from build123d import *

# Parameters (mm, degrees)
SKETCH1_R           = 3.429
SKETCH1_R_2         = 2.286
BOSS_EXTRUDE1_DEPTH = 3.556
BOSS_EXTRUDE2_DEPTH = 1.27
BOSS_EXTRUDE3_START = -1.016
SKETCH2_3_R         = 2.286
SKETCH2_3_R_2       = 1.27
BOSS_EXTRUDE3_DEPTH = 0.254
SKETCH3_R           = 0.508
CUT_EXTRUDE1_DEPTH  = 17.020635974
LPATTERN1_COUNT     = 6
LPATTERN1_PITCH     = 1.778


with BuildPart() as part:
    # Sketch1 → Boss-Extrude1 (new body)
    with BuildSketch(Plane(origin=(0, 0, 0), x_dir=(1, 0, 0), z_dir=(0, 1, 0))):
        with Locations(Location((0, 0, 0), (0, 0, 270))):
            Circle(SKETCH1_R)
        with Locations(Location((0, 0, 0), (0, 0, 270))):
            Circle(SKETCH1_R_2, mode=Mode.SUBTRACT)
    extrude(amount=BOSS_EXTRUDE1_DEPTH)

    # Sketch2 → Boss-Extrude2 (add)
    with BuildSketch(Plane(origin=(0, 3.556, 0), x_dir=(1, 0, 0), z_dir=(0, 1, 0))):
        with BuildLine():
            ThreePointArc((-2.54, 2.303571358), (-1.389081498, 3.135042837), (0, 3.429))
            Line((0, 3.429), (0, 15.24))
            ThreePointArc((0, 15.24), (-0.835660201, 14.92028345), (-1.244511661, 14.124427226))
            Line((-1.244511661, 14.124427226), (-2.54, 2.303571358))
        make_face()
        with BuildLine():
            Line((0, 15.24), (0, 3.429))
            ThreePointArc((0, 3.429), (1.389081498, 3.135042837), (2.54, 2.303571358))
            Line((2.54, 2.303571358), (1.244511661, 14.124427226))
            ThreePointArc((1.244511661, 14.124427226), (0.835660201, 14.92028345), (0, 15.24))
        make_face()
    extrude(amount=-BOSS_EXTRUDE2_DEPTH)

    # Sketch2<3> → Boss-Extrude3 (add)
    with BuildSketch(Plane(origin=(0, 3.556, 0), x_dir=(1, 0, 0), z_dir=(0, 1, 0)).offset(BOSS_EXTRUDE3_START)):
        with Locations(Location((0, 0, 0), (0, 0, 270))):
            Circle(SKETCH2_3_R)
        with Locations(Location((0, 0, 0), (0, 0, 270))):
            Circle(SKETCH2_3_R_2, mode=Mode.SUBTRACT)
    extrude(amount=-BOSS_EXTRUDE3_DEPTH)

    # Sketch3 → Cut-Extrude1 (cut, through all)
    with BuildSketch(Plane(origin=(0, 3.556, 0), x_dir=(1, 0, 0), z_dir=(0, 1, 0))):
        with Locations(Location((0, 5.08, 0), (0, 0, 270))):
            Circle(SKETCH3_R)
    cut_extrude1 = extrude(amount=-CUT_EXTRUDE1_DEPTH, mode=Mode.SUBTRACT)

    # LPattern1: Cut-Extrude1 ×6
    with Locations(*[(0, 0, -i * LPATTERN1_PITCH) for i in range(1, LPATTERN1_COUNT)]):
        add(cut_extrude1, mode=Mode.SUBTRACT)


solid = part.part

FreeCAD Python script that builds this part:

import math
import FreeCAD as App
import Part
import Sketcher
Q = App.Units.Quantity

doc = App.newDocument("Part")
body = doc.addObject("PartDesign::Body", "Body")

# Sketch on XZ plane
sketch1 = doc.addObject("Sketcher::SketchObject", "Sketch")
body.addObject(sketch1)
sketch1.AttachmentSupport = (doc.XZ_Plane, [""])
sketch1.MapMode = "FlatFace"
sketch1.addGeometry(Part.Circle(App.Vector(0, 0, 0), App.Vector(0, 0, 1), 3.4), False)
sketch1.addGeometry(Part.Circle(App.Vector(0, 0, 0), App.Vector(0, 0, 1), 2.3), False)
sketch1.addConstraint(Sketcher.Constraint("Coincident", 0, 3, -1, 1))
sketch1.addConstraint(Sketcher.Constraint("Coincident", 1, 3, -1, 1))
sketch1.addConstraint(Sketcher.Constraint("Diameter", 0, Q("0.27 in")))
sketch1.addConstraint(Sketcher.Constraint("Diameter", 1, Q("0.18 in")))
pad1 = doc.addObject("PartDesign::Pad", "Pad")
body.addObject(pad1)
pad1.Profile = sketch1
pad1.Length = Q("0.14 in")
pad1.Reversed = True

# Sketch on XZ plane
sketch2 = doc.addObject("Sketcher::SketchObject", "Sketch001")
body.addObject(sketch2)
sketch2.AttachmentSupport = (doc.XZ_Plane, [""])
sketch2.MapMode = "FlatFace"
sketch2.AttachmentOffset = App.Placement(App.Vector(0, 0, -0.14 * 25.4), App.Rotation())
sketch2.addGeometry(Part.ArcOfCircle(Part.Circle(App.Vector(0, 0, 0), App.Vector(0, 0, 1), 3.4), math.radians(-138), math.radians(-90)), False)
sketch2.addGeometry(Part.ArcOfCircle(Part.Circle(App.Vector(0, 0, 0), App.Vector(0, 0, 1), 3.4), math.radians(-90), math.radians(-42)), False)
sketch2.addGeometry(Part.LineSegment(App.Vector(2.5, -2.3, 0), App.Vector(1.2, -14.1, 0)), False)
sketch2.addGeometry(Part.ArcOfCircle(Part.Circle(App.Vector(0, -14, 0), App.Vector(0, 0, 1), 1.3), math.radians(-90), math.radians(-6)), False)
sketch2.addGeometry(Part.ArcOfCircle(Part.Circle(App.Vector(0, -14, 0), App.Vector(0, 0, 1), 1.3), math.radians(-174), math.radians(-90)), False)
sketch2.addGeometry(Part.LineSegment(App.Vector(-1.2, -14.1, 0), App.Vector(-2.5, -2.3, 0)), False)
sketch2.addConstraint(Sketcher.Constraint("Tangent", 0, 2, 1, 1))
sketch2.addConstraint(Sketcher.Constraint("Coincident", 1, 2, 2, 1))
sketch2.addConstraint(Sketcher.Constraint("Tangent", 2, 2, 3, 2))
sketch2.addConstraint(Sketcher.Constraint("Tangent", 3, 1, 4, 2))
sketch2.addConstraint(Sketcher.Constraint("Tangent", 4, 1, 5, 1))
sketch2.addConstraint(Sketcher.Constraint("Coincident", 5, 2, 0, 1))
sketch2.addConstraint(Sketcher.Constraint("Coincident", 0, 3, -1, 1))
sketch2.addConstraint(Sketcher.Constraint("Equal", 0, 1))
sketch2.addConstraint(Sketcher.Constraint("Equal", 3, 4))
sketch2.addConstraint(Sketcher.Constraint("Symmetric", 2, 2, 4, 1, -2))
sketch2.addConstraint(Sketcher.Constraint("PointOnObject", 0, 2, -2))
sketch2.addConstraint(Sketcher.Constraint("PointOnObject", 3, 1, -2))
sketch2.addConstraint(Sketcher.Constraint("Radius", 0, Q("0.135 in")))
sketch2.addConstraint(Sketcher.Constraint("DistanceX", -1, 1, 1, 2, Q("0.1 in")))
sketch2.addConstraint(Sketcher.Constraint("DistanceY", 3, 1, -1, 1, Q("0.6 in")))
sketch2.addConstraint(Sketcher.Constraint("Radius", 3, Q("1.251963 mm")))
pad2 = doc.addObject("PartDesign::Pad", "Pad001")
body.addObject(pad2)
pad2.Profile = sketch2
pad2.Length = Q("0.05 in")

# Sketch on XZ plane
sketch3 = doc.addObject("Sketcher::SketchObject", "Sketch002")
body.addObject(sketch3)
sketch3.AttachmentSupport = (doc.XZ_Plane, [""])
sketch3.MapMode = "FlatFace"
sketch3.AttachmentOffset = App.Placement(App.Vector(0, 0, -0.1 * 25.4), App.Rotation())
sketch3.addGeometry(Part.Circle(App.Vector(0, 0, 0), App.Vector(0, 0, 1), 2.3), False)
sketch3.addGeometry(Part.Circle(App.Vector(0, 0, 0), App.Vector(0, 0, 1), 1.3), False)
sketch3.addConstraint(Sketcher.Constraint("Coincident", 0, 3, -1, 1))
sketch3.addConstraint(Sketcher.Constraint("Coincident", 1, 3, -1, 1))
sketch3.addConstraint(Sketcher.Constraint("Diameter", 1, Q("0.1 in")))
sketch3.addConstraint(Sketcher.Constraint("Diameter", 0, Q("0.18 in")))
pad3 = doc.addObject("PartDesign::Pad", "Pad002")
body.addObject(pad3)
pad3.Profile = sketch3
pad3.Length = Q("0.01 in")

# Sketch on XZ plane
sketch4 = doc.addObject("Sketcher::SketchObject", "Sketch003")
body.addObject(sketch4)
sketch4.AttachmentSupport = (doc.XZ_Plane, [""])
sketch4.MapMode = "FlatFace"
sketch4.AttachmentOffset = App.Placement(App.Vector(0, 0, -0.14 * 25.4), App.Rotation())
sketch4.addGeometry(Part.Circle(App.Vector(0, -5.1, 0), App.Vector(0, 0, 1), 0.5), False)
sketch4.addConstraint(Sketcher.Constraint("PointOnObject", 0, 3, -2))
sketch4.addConstraint(Sketcher.Constraint("Diameter", 0, Q("0.04 in")))
sketch4.addConstraint(Sketcher.Constraint("DistanceY", 0, 3, -1, 1, Q("0.2 in")))
pocket1 = doc.addObject("PartDesign::Pocket", "Pocket")
body.addObject(pocket1)
pocket1.Profile = sketch4
pocket1.Type = "ThroughAll"
pocket1.Reversed = True
doc.recompute()

linearpattern = doc.addObject("PartDesign::LinearPattern", "LinearPattern")
body.addObject(linearpattern)
linearpattern.Originals = [pocket1]
linearpattern.Direction = (doc.Z_Axis, [""])
linearpattern.Mode = "offset"
linearpattern.Offset = Q("0.07 in")
linearpattern.Occurrences = 6
linearpattern.Reversed = True
body.Tip = linearpattern

doc.recompute()
